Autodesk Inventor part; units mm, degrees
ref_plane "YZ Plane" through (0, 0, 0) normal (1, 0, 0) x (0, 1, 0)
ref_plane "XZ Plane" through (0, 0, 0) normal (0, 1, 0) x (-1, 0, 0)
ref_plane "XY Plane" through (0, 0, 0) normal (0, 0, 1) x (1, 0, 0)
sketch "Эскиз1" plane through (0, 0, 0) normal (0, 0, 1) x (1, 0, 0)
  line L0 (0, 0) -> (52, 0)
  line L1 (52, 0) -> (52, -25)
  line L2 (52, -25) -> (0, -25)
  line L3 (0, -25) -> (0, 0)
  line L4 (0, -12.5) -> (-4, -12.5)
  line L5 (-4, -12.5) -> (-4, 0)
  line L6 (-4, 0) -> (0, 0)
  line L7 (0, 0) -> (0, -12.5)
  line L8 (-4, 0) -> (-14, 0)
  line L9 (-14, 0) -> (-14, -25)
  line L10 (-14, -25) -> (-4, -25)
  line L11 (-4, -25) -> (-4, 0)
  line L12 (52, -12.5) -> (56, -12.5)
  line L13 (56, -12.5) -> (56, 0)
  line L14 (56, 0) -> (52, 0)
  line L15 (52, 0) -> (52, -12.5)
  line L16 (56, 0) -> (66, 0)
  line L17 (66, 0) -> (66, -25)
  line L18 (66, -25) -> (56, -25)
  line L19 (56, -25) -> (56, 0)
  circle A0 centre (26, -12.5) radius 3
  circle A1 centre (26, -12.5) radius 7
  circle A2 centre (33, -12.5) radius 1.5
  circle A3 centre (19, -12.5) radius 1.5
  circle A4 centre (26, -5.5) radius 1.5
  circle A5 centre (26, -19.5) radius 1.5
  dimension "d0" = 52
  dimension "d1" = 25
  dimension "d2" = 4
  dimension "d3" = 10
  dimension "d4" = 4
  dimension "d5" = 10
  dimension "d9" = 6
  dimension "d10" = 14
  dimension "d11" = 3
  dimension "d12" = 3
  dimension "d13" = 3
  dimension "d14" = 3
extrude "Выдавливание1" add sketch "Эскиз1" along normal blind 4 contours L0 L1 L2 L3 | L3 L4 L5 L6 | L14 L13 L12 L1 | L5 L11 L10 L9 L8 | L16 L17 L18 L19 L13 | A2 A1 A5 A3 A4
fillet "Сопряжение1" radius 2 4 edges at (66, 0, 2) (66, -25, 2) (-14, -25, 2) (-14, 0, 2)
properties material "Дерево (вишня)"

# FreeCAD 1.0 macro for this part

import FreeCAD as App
import Part
import Sketcher

V = App.Vector


def edges_at(feature, points):
    """Names of the edges that pass closest to the given points."""
    edges = feature.Shape.Edges
    near = lambda p: min(range(len(edges)), key=lambda i: edges[i].distToShape(Part.Vertex(*p))[0])
    return sorted({f"Edge{near(p) + 1}" for p in points})


def add_polygon(sketch, points):
    """Adds a closed chain of lines whose ends are joined by coincident constraints."""
    first, n = sketch.GeometryCount, len(points)
    for a, b in zip(points, points[1:] + points[:1]):
        sketch.addGeometry(Part.LineSegment(App.Vector(*a, 0), App.Vector(*b, 0)), False)
    for i in range(n):
        sketch.addConstraint(Sketcher.Constraint("Coincident", first + i, 2, first + (i + 1) % n, 1))

doc = App.newDocument("Part")
params = doc.addObject("Spreadsheet::Sheet", "Params")
for row, (alias, value) in enumerate([
    ("sketch1_diameter", "3 mm"),
    ("sketch1_diameter2", "6 mm"),
    ("sketch1_width", "10 mm"),
    ("sketch1_width2", "4 mm"),
    ("sketch1_width3", "52 mm"),
    ("pad1_length", "4 mm"),
    ("fillet_radius", "2 mm"),
], start=1):
    params.set(f"A{row}", alias)
    params.set(f"B{row}", "=" + value)
    params.setAlias(f"B{row}", alias)

body = doc.addObject("PartDesign::Body", "Body")

# Sketch on XY plane
sketch1 = body.newObject("Sketcher::SketchObject", "Sketch")
sketch1.AttachmentSupport = (doc.getObject("XY_Plane"), [""])
sketch1.MapMode = "FlatFace"
add_polygon(sketch1, [(-14, 0), (-14, -25), (-4, -25), (-4, -12.5), (0, -12.5), (0, -25), (52, -25), (52, -12.5), (56, -12.5), (56, -25), (66, -25), (66, 0)])  # lines 0-11
sketch1.addGeometry(Part.Circle(V(26, -5.5, 0), V(0, 0, 1), 1.5), False)  # 12
sketch1.addGeometry(Part.Circle(V(19, -12.5, 0), V(0, 0, 1), 1.5), False)  # 13
sketch1.addGeometry(Part.Circle(V(26, -19.5, 0), V(0, 0, 1), 1.5), False)  # 14
sketch1.addGeometry(Part.Circle(V(33, -12.5, 0), V(0, 0, 1), 1.5), False)  # 15
sketch1.addGeometry(Part.Circle(V(26, -12.5, 0), V(0, 0, 1), 3), False)  # 16
sketch1.addConstraint([
    Sketcher.Constraint("Vertical", 0),
    Sketcher.Constraint("Horizontal", 1),
    Sketcher.Constraint("Vertical", 2),
    Sketcher.Constraint("Horizontal", 3),
    Sketcher.Constraint("Vertical", 4),
    Sketcher.Constraint("Horizontal", 5),
    Sketcher.Constraint("Vertical", 6),
    Sketcher.Constraint("Horizontal", 7),
    Sketcher.Constraint("Vertical", 8),
    Sketcher.Constraint("Horizontal", 9),
    Sketcher.Constraint("Vertical", 10),
    Sketcher.Constraint("Horizontal", 11),
    Sketcher.Constraint("Equal", 12, 13),
    Sketcher.Constraint("Equal", 13, 14),
    Sketcher.Constraint("Equal", 14, 15),
    Sketcher.Constraint("PointOnObject", 3, 2, -2),
    Sketcher.Constraint("PointOnObject", 10, 2, -1),
    Sketcher.Constraint("Horizontal", 13, 3, 15, 3),
    Sketcher.Constraint("Horizontal", 15, 3, 16, 3),
    Sketcher.Constraint("Horizontal", 16, 3, 2, 2),
    Sketcher.Constraint("Horizontal", 1, 2, 4, 2),
    Sketcher.Constraint("Horizontal", 3, 2, 6, 2),
    Sketcher.Constraint("Horizontal", 5, 2, 8, 2),
    Sketcher.Constraint("Vertical", 12, 3, 14, 3),
    Sketcher.Constraint("Vertical", 14, 3, 16, 3),
    Sketcher.Constraint("Equal", 3, 7),
    Sketcher.Constraint("Equal", 1, 9),
    Sketcher.Constraint("Diameter", 12, 3.0),
    Sketcher.Constraint("Diameter", 16, 6.0),
    Sketcher.Constraint("DistanceX", 1, 1, 1, 2, 10.0),
    Sketcher.Constraint("DistanceX", 3, 1, 3, 2, 4.0),
    Sketcher.Constraint("DistanceX", 5, 1, 5, 2, 52.0),
    Sketcher.Constraint("DistanceY", 0, 2, 0, 1, 25.0),
    Sketcher.Constraint("DistanceY", 14, 3, 12, 3, 14.0),
    Sketcher.Constraint("DistanceX", 13, 3, 15, 3, 14.0),
    Sketcher.Constraint("DistanceY", 2, 1, 2, 2, 12.5),
    Sketcher.Constraint("DistanceX", -1, 1, 12, 3, 26.0),
    Sketcher.Constraint("DistanceX", -1, 1, 13, 3, 19.0),
    Sketcher.Constraint("DistanceY", 13, 3, 12, 3, 7.0),
])
sketch1.setExpression("Constraints[39]", "Params.sketch1_diameter")
sketch1.setExpression("Constraints[40]", "Params.sketch1_diameter2")
sketch1.setExpression("Constraints[41]", "Params.sketch1_width")
sketch1.setExpression("Constraints[42]", "Params.sketch1_width2")
sketch1.setExpression("Constraints[43]", "Params.sketch1_width3")
pad1 = body.newObject("PartDesign::Pad", "Pad")
pad1.Profile = sketch1
pad1.setExpression("Length", "Params.pad1_length")
doc.recompute()

fillet = body.newObject("PartDesign::Fillet", "Fillet")
fillet.Base = (pad1, edges_at(pad1, [
    (66, 0, 2),
    (66, -25, 2),
    (-14, -25, 2),
    (-14, 0, 2),
]))
fillet.setExpression("Radius", "Params.fillet_radius")

doc.recompute()
